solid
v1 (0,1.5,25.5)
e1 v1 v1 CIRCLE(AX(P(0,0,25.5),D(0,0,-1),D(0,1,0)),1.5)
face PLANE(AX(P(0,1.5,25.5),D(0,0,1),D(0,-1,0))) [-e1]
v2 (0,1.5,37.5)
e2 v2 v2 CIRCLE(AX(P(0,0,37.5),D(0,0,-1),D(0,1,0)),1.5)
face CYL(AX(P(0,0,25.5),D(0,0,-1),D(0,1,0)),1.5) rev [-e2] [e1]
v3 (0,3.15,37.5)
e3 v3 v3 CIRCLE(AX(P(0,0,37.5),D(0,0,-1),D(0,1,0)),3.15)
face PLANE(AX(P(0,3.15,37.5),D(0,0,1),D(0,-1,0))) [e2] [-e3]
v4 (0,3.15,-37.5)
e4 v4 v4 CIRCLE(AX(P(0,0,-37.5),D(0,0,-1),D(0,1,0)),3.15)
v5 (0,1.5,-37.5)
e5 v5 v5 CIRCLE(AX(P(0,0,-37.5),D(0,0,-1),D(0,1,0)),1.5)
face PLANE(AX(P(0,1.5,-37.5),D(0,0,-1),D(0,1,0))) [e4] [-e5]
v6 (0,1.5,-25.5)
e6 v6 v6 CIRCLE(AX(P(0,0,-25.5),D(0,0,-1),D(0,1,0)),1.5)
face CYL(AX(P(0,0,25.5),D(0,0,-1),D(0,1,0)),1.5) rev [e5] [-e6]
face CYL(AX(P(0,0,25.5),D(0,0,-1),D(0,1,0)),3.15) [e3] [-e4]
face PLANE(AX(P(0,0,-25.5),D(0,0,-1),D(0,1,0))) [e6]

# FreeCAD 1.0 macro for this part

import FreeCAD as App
import Part
import Sketcher

V = App.Vector
Q = App.Units.Quantity


def add_polygon(sketch, points):
    """Adds a closed chain of lines whose ends are joined by coincident constraints."""
    first, n = sketch.GeometryCount, len(points)
    for a, b in zip(points, points[1:] + points[:1]):
        sketch.addGeometry(Part.LineSegment(App.Vector(*a, 0), App.Vector(*b, 0)), False)
    for i in range(n):
        sketch.addConstraint(Sketcher.Constraint("Coincident", first + i, 2, first + (i + 1) % n, 1))

doc = App.newDocument("Part")
body = doc.addObject("PartDesign::Body", "Body")

sketch1 = body.newObject("Sketcher::SketchObject", "Sketch")
sketch1.AttachmentSupport = (doc.getObject("YZ_Plane"), [""])
sketch1.MapMode = "FlatFace"
add_polygon(sketch1, [(1.5, -25.5), (1.5, -37.5), (3.1, -37.5), (3.1, 37.5), (1.5, 37.5), (1.5, 25.5), (0, 25.5), (0, -25.5)])
sketch1.addConstraint(Sketcher.Constraint("Vertical", 0))
sketch1.addConstraint(Sketcher.Constraint("Horizontal", 1))
sketch1.addConstraint(Sketcher.Constraint("Vertical", 2))
sketch1.addConstraint(Sketcher.Constraint("Horizontal", 3))
sketch1.addConstraint(Sketcher.Constraint("Vertical", 4))
sketch1.addConstraint(Sketcher.Constraint("Horizontal", 5))
sketch1.addConstraint(Sketcher.Constraint("Vertical", 6))
sketch1.addConstraint(Sketcher.Constraint("Horizontal", 7))
sketch1.addConstraint(Sketcher.Constraint("Symmetric", 5, 2, 6, 2, -1, 1))
sketch1.addConstraint(Sketcher.Constraint("Symmetric", 0, 2, 3, 2, -1))
sketch1.addConstraint(Sketcher.Constraint("DistanceY", 0, 2, 0, 1, Q("12 mm")))
sketch1.addConstraint(Sketcher.Constraint("DistanceY", 2, 1, 2, 2, Q("75 mm")))
sketch1.addConstraint(Sketcher.Constraint("DistanceX", 5, 2, 5, 1, Q("1.5 mm")))
sketch1.addConstraint(Sketcher.Constraint("DistanceX", 1, 1, 1, 2, Q("1.65 mm")))
revolution = body.newObject("PartDesign::Revolution", "Revolution")
revolution.Profile = sketch1
revolution.ReferenceAxis = (sketch1, ["V_Axis"])
revolution.Angle = 360

doc.recompute()
